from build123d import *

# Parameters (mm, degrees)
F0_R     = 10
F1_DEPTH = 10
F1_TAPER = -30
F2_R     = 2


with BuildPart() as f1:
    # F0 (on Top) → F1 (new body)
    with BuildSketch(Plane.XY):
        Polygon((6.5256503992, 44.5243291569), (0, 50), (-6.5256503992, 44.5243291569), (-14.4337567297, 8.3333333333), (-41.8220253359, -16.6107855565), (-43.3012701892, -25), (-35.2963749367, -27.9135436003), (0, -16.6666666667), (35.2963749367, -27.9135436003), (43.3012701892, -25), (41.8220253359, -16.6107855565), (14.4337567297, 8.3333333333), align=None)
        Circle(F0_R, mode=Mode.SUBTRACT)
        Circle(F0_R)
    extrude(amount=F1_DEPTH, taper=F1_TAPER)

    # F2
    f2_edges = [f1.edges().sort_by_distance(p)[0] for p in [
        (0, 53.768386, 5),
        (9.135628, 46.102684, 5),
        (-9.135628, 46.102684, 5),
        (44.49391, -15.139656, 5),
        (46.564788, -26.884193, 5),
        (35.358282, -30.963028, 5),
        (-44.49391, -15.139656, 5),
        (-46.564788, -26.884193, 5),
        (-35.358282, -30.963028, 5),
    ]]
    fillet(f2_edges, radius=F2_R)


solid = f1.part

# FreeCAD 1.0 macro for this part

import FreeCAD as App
import Part
import Sketcher
Q = App.Units.Quantity


def edges_at(feature, points):
    """Names of the edges that pass closest to the given points."""
    edges = feature.Shape.Edges
    near = lambda p: min(range(len(edges)), key=lambda i: edges[i].distToShape(Part.Vertex(*p))[0])
    return sorted({f"Edge{near(p) + 1}" for p in points})

doc = App.newDocument("Part")
body = doc.addObject("PartDesign::Body", "Body")

# Sketch on XY plane
sketch1 = body.newObject("Sketcher::SketchObject", "Sketch")
sketch1.AttachmentSupport = (doc.getObject("XY_Plane"), [""])
sketch1.MapMode = "FlatFace"
sketch1.addGeometry([
    Part.LineSegment(App.Vector(7, 45, 0), App.Vector(0, 50, 0)),  # 0
    Part.LineSegment(App.Vector(0, 50, 0), App.Vector(-7, 45, 0)),  # 1
    Part.LineSegment(App.Vector(-7, 45, 0), App.Vector(-14, 8, 0)),  # 2
    Part.LineSegment(App.Vector(-14, 8, 0), App.Vector(-42, -17, 0)),  # 3
    Part.LineSegment(App.Vector(-42, -17, 0), App.Vector(-43, -25, 0)),  # 4
    Part.LineSegment(App.Vector(-43, -25, 0), App.Vector(-35, -28, 0)),  # 5
    Part.LineSegment(App.Vector(-35, -28, 0), App.Vector(0, -17, 0)),  # 6
    Part.LineSegment(App.Vector(0, -17, 0), App.Vector(35, -28, 0)),  # 7
    Part.LineSegment(App.Vector(35, -28, 0), App.Vector(43, -25, 0)),  # 8
    Part.LineSegment(App.Vector(43, -25, 0), App.Vector(42, -17, 0)),  # 9
    Part.LineSegment(App.Vector(42, -17, 0), App.Vector(14, 8, 0)),  # 10
    Part.LineSegment(App.Vector(14, 8, 0), App.Vector(7, 45, 0)),  # 11
], False)
sketch1.addConstraint([
    Sketcher.Constraint("Coincident", 0, 2, 1, 1),
    Sketcher.Constraint("Coincident", 1, 2, 2, 1),
    Sketcher.Constraint("Coincident", 2, 2, 3, 1),
    Sketcher.Constraint("Coincident", 3, 2, 4, 1),
    Sketcher.Constraint("Coincident", 4, 2, 5, 1),
    Sketcher.Constraint("Coincident", 5, 2, 6, 1),
    Sketcher.Constraint("Coincident", 6, 2, 7, 1),
    Sketcher.Constraint("Coincident", 7, 2, 8, 1),
    Sketcher.Constraint("Coincident", 8, 2, 9, 1),
    Sketcher.Constraint("Coincident", 9, 2, 10, 1),
    Sketcher.Constraint("Coincident", 10, 2, 11, 1),
    Sketcher.Constraint("Coincident", 11, 2, 0, 1),
    Sketcher.Constraint("Symmetric", 5, 2, 7, 2, -2),
    Sketcher.Constraint("Symmetric", 4, 2, 8, 2, -2),
    Sketcher.Constraint("Symmetric", 3, 2, 9, 2, -2),
    Sketcher.Constraint("Symmetric", 2, 2, 10, 2, -2),
    Sketcher.Constraint("Symmetric", 1, 2, 11, 2, -2),
    Sketcher.Constraint("PointOnObject", 0, 2, -2),
    Sketcher.Constraint("PointOnObject", 6, 2, -2),
    Sketcher.Constraint("Equal", 2, 3),
    Sketcher.Constraint("Equal", 1, 4),
    Sketcher.Constraint("Equal", 4, 5),
    Sketcher.Constraint("Equal", 3, 6),
    Sketcher.Constraint("Angle", 0, Q("140 deg")),
    Sketcher.Constraint("Angle", 4, Q("-100 deg")),
    Sketcher.Constraint("Angle", 5, Q("-20 deg")),
    Sketcher.Constraint("DistanceY", -1, 1, 0, 2, 50.0),
    Sketcher.Constraint("DistanceY", 4, 2, -1, 1, 25.0),
    Sketcher.Constraint("DistanceY", 6, 2, 2, 2, 25.0),
    Sketcher.Constraint("DistanceX", 3, 2, 7, 2, 77.1184),
    Sketcher.Constraint("DistanceX", 1, 2, 11, 2, 13.051301),
])
pad1 = body.newObject("PartDesign::Pad", "Pad")
pad1.Profile = sketch1
pad1.Length = 10
pad1.TaperAngle = 30
doc.recompute()

fillet = body.newObject("PartDesign::Fillet", "Fillet")
fillet.Base = (pad1, edges_at(pad1, [
    (0, 53.768, 5),
    (9.136, 46.103, 5),
    (-9.136, 46.103, 5),
    (44.494, -15.14, 5),
    (46.565, -26.884, 5),
    (35.358, -30.963, 5),
    (-44.494, -15.14, 5),
    (-46.565, -26.884, 5),
    (-35.358, -30.963, 5),
]))
fillet.Radius = 2

doc.recompute()
